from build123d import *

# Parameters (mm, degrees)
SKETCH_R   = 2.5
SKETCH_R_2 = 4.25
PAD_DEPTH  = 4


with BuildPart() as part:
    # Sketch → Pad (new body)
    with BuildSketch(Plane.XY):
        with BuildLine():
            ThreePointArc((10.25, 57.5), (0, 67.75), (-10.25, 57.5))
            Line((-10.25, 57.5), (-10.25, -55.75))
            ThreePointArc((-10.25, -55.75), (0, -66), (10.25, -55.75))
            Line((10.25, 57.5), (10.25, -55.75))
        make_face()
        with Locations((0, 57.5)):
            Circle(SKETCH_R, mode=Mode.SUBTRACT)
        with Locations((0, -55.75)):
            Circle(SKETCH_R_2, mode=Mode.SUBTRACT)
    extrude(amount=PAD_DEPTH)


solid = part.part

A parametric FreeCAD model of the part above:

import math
import FreeCAD as App
import Part
import Sketcher

V = App.Vector
Q = App.Units.Quantity

doc = App.newDocument("Part")
body = doc.addObject("PartDesign::Body", "Body")

sketch1 = doc.addObject("Sketcher::SketchObject", "Sketch")
body.addObject(sketch1)
sketch1.AttachmentSupport = (doc.XY_Plane, [""])
sketch1.MapMode = "FlatFace"
sketch1.addGeometry([
    Part.ArcOfCircle(Part.Circle(V(0, 57.5, 0), V(0, 0, 1), 10.25), math.radians(0), math.radians(180)),
    Part.LineSegment(V(-10.25, 57.5, 0), V(-10.25, -55.75, 0)),
    Part.ArcOfCircle(Part.Circle(V(0, -55.75, 0), V(0, 0, 1), 10.25), math.radians(180), math.radians(360)),
    Part.LineSegment(V(10.25, -55.75, 0), V(10.25, 57.5, 0)),
    Part.Circle(V(0, -55.75, 0), V(0, 0, 1), 4.25),
    Part.Circle(V(0, 57.5, 0), V(0, 0, 1), 2.5),
], False)
sketch1.addConstraint([
    Sketcher.Constraint("Tangent", 0, 2, 1, 1),
    Sketcher.Constraint("Tangent", 1, 2, 2, 1),
    Sketcher.Constraint("Tangent", 2, 2, 3, 1),
    Sketcher.Constraint("Tangent", 3, 2, 0, 1),
    Sketcher.Constraint("Vertical", 1),
    Sketcher.Constraint("Vertical", 3),
    Sketcher.Constraint("Coincident", 4, 3, 2, 3),
    Sketcher.Constraint("Coincident", 5, 3, 0, 3),
    Sketcher.Constraint("PointOnObject", 0, 3, -2),
    Sketcher.Constraint("Diameter", 5, Q("5 mm")),
    Sketcher.Constraint("Diameter", 4, Q("8.5 mm")),
    Sketcher.Constraint("Radius", 0, Q("10.25 mm")),
    Sketcher.Constraint("DistanceY", 1, 2, 1, 1, Q("113.25 mm")),
    Sketcher.Constraint("DistanceY", -1, 1, 0, 3, Q("57.5 mm")),
])
pad1 = doc.addObject("PartDesign::Pad", "Pad")
body.addObject(pad1)
pad1.Profile = sketch1
pad1.Length = 4

doc.recompute()
